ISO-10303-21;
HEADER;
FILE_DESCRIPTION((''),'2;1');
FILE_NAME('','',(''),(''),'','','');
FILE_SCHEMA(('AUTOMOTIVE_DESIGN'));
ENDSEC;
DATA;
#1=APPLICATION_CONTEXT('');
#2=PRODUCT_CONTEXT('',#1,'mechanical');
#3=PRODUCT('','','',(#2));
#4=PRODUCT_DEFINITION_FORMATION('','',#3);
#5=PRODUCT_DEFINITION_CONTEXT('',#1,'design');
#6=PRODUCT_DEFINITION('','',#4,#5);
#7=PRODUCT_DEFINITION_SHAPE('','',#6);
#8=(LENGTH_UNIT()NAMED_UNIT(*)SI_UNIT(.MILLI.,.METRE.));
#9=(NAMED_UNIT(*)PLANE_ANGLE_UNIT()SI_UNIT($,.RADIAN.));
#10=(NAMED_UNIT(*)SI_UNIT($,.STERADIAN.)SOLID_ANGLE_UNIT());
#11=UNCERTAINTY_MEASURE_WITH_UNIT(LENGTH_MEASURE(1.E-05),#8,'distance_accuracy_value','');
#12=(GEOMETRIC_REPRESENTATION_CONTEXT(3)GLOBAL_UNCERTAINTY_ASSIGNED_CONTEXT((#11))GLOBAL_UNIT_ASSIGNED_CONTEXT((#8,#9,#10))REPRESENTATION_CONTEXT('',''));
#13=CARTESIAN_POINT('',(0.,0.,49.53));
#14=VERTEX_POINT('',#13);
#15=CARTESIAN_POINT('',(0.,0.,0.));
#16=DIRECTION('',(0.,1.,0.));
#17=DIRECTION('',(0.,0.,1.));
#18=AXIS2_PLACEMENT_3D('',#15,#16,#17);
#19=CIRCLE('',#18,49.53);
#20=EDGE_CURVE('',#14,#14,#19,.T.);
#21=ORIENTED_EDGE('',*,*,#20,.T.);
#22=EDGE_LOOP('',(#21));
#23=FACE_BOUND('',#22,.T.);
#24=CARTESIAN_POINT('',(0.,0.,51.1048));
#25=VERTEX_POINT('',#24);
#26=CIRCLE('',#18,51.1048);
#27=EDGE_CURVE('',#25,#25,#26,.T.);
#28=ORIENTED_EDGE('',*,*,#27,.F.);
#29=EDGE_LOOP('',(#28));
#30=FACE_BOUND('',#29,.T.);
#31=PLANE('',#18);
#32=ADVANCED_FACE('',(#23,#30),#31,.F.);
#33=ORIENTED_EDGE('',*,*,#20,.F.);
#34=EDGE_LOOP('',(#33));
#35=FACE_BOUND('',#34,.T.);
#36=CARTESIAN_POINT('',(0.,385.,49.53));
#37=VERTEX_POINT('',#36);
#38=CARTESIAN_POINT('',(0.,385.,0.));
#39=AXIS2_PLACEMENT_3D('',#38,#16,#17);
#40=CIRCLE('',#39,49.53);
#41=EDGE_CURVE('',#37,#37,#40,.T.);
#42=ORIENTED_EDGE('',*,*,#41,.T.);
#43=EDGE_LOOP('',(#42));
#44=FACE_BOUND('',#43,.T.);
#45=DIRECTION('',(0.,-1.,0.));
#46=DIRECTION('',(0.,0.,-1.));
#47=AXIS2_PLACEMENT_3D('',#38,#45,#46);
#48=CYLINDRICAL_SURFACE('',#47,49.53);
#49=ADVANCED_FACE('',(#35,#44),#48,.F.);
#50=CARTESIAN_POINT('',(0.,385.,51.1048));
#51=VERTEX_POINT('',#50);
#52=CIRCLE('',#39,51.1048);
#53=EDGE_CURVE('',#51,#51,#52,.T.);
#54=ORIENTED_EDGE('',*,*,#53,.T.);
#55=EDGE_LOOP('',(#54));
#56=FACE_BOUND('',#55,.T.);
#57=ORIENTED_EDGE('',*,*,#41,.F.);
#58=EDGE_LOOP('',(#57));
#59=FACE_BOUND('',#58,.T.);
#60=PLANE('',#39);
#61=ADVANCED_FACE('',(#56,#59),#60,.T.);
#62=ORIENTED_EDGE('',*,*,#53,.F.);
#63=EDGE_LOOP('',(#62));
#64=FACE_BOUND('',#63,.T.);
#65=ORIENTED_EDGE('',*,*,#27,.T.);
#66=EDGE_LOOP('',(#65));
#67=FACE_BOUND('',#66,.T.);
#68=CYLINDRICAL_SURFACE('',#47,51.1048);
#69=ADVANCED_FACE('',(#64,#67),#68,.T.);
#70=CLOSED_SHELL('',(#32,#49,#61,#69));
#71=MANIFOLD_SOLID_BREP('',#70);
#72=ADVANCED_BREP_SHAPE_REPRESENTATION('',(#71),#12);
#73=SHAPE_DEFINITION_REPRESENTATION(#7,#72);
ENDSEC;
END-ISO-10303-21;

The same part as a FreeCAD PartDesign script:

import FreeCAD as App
import Part
import Sketcher

V = App.Vector
Q = App.Units.Quantity

doc = App.newDocument("Part")
body = doc.addObject("PartDesign::Body", "Body")

# Sketch on XZ plane
sketch1 = doc.addObject("Sketcher::SketchObject", "Sketch")
body.addObject(sketch1)
sketch1.AttachmentSupport = (doc.XZ_Plane, [""])
sketch1.MapMode = "FlatFace"
sketch1.addGeometry(Part.Circle(V(0, 0, 0), V(0, 0, 1), 51), False)
sketch1.addGeometry(Part.Circle(V(0, 0, 0), V(0, 0, 1), 50), False)
sketch1.addConstraint(Sketcher.Constraint("Coincident", 0, 3, -1, 1))
sketch1.addConstraint(Sketcher.Constraint("Coincident", 1, 3, -1, 1))
sketch1.addConstraint(Sketcher.Constraint("Diameter", 1, Q("3.9 in")))
sketch1.addConstraint(Sketcher.Constraint("Diameter", 0, Q("4.024 in")))
pad1 = doc.addObject("PartDesign::Pad", "Pad")
body.addObject(pad1)
pad1.Profile = sketch1
pad1.Length = 385
pad1.Reversed = True

doc.recompute()
